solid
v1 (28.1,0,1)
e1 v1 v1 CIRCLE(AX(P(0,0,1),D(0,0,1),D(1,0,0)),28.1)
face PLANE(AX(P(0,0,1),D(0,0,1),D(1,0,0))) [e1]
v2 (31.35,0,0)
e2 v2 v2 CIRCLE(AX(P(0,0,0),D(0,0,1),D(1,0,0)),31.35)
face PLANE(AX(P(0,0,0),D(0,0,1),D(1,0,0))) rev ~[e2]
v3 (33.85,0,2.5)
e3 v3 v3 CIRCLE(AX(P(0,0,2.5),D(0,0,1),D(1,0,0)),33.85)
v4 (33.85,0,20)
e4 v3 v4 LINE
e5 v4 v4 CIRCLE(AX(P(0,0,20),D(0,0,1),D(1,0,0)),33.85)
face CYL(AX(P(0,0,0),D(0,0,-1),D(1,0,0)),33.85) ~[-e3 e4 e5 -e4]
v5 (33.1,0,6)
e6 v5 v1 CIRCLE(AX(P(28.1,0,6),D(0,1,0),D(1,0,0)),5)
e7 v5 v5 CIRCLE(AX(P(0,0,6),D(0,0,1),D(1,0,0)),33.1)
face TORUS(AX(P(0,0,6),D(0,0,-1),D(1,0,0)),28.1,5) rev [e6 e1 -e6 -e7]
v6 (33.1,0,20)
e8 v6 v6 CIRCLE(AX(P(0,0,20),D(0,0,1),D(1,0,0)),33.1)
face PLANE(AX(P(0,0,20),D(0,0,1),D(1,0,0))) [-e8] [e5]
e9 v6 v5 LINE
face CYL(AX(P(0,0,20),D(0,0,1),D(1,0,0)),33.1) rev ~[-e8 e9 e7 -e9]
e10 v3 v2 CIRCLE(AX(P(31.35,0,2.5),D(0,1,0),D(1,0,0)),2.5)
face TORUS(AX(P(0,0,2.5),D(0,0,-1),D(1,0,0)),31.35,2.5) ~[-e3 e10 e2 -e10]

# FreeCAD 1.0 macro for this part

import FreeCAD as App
import Part
import Sketcher

V = App.Vector


def edges_at(feature, points):
    """Names of the edges that pass closest to the given points."""
    edges = feature.Shape.Edges
    near = lambda p: min(range(len(edges)), key=lambda i: edges[i].distToShape(Part.Vertex(*p))[0])
    return sorted({f"Edge{near(p) + 1}" for p in points})

doc = App.newDocument("Part")
body = doc.addObject("PartDesign::Body", "Body")

# Sketch on XY plane
sketch1 = doc.addObject("Sketcher::SketchObject", "Sketch")
body.addObject(sketch1)
sketch1.AttachmentSupport = (doc.XY_Plane, [""])
sketch1.MapMode = "FlatFace"
sketch1.addGeometry(Part.Circle(V(0, 0, 0), V(0, 0, 1), 34), False)
sketch1.addConstraint(Sketcher.Constraint("Coincident", 0, 3, -1, 1))
sketch1.addConstraint(Sketcher.Constraint("Diameter", 0, 67.7))
pad1 = doc.addObject("PartDesign::Pad", "Pad")
body.addObject(pad1)
pad1.Profile = sketch1
pad1.Length = 20

# Sketch on XY plane
sketch2 = doc.addObject("Sketcher::SketchObject", "Sketch001")
body.addObject(sketch2)
sketch2.AttachmentSupport = (doc.XY_Plane, [""])
sketch2.MapMode = "FlatFace"
sketch2.AttachmentOffset = App.Placement(V(0, 0, 20), App.Rotation())
sketch2.addGeometry(Part.Circle(V(0, 0, 0), V(0, 0, 1), 33), False)
sketch2.addConstraint(Sketcher.Constraint("Coincident", 0, 3, -1, 1))
sketch2.addConstraint(Sketcher.Constraint("Diameter", 0, 66.2))
pocket1 = doc.addObject("PartDesign::Pocket", "Pocket")
body.addObject(pocket1)
pocket1.Profile = sketch2
pocket1.Length = 19
doc.recompute()

fillet = doc.addObject("PartDesign::Fillet", "Fillet")
body.addObject(fillet)
fillet.Base = (pocket1, edges_at(pocket1, [(-33.1, 0, 1)]))
fillet.Radius = 5
doc.recompute()

fillet2 = doc.addObject("PartDesign::Fillet", "Fillet001")
body.addObject(fillet2)
fillet2.Base = (fillet, edges_at(fillet, [(-33.85, 0, 0)]))
fillet2.Radius = 2.5

doc.recompute()
